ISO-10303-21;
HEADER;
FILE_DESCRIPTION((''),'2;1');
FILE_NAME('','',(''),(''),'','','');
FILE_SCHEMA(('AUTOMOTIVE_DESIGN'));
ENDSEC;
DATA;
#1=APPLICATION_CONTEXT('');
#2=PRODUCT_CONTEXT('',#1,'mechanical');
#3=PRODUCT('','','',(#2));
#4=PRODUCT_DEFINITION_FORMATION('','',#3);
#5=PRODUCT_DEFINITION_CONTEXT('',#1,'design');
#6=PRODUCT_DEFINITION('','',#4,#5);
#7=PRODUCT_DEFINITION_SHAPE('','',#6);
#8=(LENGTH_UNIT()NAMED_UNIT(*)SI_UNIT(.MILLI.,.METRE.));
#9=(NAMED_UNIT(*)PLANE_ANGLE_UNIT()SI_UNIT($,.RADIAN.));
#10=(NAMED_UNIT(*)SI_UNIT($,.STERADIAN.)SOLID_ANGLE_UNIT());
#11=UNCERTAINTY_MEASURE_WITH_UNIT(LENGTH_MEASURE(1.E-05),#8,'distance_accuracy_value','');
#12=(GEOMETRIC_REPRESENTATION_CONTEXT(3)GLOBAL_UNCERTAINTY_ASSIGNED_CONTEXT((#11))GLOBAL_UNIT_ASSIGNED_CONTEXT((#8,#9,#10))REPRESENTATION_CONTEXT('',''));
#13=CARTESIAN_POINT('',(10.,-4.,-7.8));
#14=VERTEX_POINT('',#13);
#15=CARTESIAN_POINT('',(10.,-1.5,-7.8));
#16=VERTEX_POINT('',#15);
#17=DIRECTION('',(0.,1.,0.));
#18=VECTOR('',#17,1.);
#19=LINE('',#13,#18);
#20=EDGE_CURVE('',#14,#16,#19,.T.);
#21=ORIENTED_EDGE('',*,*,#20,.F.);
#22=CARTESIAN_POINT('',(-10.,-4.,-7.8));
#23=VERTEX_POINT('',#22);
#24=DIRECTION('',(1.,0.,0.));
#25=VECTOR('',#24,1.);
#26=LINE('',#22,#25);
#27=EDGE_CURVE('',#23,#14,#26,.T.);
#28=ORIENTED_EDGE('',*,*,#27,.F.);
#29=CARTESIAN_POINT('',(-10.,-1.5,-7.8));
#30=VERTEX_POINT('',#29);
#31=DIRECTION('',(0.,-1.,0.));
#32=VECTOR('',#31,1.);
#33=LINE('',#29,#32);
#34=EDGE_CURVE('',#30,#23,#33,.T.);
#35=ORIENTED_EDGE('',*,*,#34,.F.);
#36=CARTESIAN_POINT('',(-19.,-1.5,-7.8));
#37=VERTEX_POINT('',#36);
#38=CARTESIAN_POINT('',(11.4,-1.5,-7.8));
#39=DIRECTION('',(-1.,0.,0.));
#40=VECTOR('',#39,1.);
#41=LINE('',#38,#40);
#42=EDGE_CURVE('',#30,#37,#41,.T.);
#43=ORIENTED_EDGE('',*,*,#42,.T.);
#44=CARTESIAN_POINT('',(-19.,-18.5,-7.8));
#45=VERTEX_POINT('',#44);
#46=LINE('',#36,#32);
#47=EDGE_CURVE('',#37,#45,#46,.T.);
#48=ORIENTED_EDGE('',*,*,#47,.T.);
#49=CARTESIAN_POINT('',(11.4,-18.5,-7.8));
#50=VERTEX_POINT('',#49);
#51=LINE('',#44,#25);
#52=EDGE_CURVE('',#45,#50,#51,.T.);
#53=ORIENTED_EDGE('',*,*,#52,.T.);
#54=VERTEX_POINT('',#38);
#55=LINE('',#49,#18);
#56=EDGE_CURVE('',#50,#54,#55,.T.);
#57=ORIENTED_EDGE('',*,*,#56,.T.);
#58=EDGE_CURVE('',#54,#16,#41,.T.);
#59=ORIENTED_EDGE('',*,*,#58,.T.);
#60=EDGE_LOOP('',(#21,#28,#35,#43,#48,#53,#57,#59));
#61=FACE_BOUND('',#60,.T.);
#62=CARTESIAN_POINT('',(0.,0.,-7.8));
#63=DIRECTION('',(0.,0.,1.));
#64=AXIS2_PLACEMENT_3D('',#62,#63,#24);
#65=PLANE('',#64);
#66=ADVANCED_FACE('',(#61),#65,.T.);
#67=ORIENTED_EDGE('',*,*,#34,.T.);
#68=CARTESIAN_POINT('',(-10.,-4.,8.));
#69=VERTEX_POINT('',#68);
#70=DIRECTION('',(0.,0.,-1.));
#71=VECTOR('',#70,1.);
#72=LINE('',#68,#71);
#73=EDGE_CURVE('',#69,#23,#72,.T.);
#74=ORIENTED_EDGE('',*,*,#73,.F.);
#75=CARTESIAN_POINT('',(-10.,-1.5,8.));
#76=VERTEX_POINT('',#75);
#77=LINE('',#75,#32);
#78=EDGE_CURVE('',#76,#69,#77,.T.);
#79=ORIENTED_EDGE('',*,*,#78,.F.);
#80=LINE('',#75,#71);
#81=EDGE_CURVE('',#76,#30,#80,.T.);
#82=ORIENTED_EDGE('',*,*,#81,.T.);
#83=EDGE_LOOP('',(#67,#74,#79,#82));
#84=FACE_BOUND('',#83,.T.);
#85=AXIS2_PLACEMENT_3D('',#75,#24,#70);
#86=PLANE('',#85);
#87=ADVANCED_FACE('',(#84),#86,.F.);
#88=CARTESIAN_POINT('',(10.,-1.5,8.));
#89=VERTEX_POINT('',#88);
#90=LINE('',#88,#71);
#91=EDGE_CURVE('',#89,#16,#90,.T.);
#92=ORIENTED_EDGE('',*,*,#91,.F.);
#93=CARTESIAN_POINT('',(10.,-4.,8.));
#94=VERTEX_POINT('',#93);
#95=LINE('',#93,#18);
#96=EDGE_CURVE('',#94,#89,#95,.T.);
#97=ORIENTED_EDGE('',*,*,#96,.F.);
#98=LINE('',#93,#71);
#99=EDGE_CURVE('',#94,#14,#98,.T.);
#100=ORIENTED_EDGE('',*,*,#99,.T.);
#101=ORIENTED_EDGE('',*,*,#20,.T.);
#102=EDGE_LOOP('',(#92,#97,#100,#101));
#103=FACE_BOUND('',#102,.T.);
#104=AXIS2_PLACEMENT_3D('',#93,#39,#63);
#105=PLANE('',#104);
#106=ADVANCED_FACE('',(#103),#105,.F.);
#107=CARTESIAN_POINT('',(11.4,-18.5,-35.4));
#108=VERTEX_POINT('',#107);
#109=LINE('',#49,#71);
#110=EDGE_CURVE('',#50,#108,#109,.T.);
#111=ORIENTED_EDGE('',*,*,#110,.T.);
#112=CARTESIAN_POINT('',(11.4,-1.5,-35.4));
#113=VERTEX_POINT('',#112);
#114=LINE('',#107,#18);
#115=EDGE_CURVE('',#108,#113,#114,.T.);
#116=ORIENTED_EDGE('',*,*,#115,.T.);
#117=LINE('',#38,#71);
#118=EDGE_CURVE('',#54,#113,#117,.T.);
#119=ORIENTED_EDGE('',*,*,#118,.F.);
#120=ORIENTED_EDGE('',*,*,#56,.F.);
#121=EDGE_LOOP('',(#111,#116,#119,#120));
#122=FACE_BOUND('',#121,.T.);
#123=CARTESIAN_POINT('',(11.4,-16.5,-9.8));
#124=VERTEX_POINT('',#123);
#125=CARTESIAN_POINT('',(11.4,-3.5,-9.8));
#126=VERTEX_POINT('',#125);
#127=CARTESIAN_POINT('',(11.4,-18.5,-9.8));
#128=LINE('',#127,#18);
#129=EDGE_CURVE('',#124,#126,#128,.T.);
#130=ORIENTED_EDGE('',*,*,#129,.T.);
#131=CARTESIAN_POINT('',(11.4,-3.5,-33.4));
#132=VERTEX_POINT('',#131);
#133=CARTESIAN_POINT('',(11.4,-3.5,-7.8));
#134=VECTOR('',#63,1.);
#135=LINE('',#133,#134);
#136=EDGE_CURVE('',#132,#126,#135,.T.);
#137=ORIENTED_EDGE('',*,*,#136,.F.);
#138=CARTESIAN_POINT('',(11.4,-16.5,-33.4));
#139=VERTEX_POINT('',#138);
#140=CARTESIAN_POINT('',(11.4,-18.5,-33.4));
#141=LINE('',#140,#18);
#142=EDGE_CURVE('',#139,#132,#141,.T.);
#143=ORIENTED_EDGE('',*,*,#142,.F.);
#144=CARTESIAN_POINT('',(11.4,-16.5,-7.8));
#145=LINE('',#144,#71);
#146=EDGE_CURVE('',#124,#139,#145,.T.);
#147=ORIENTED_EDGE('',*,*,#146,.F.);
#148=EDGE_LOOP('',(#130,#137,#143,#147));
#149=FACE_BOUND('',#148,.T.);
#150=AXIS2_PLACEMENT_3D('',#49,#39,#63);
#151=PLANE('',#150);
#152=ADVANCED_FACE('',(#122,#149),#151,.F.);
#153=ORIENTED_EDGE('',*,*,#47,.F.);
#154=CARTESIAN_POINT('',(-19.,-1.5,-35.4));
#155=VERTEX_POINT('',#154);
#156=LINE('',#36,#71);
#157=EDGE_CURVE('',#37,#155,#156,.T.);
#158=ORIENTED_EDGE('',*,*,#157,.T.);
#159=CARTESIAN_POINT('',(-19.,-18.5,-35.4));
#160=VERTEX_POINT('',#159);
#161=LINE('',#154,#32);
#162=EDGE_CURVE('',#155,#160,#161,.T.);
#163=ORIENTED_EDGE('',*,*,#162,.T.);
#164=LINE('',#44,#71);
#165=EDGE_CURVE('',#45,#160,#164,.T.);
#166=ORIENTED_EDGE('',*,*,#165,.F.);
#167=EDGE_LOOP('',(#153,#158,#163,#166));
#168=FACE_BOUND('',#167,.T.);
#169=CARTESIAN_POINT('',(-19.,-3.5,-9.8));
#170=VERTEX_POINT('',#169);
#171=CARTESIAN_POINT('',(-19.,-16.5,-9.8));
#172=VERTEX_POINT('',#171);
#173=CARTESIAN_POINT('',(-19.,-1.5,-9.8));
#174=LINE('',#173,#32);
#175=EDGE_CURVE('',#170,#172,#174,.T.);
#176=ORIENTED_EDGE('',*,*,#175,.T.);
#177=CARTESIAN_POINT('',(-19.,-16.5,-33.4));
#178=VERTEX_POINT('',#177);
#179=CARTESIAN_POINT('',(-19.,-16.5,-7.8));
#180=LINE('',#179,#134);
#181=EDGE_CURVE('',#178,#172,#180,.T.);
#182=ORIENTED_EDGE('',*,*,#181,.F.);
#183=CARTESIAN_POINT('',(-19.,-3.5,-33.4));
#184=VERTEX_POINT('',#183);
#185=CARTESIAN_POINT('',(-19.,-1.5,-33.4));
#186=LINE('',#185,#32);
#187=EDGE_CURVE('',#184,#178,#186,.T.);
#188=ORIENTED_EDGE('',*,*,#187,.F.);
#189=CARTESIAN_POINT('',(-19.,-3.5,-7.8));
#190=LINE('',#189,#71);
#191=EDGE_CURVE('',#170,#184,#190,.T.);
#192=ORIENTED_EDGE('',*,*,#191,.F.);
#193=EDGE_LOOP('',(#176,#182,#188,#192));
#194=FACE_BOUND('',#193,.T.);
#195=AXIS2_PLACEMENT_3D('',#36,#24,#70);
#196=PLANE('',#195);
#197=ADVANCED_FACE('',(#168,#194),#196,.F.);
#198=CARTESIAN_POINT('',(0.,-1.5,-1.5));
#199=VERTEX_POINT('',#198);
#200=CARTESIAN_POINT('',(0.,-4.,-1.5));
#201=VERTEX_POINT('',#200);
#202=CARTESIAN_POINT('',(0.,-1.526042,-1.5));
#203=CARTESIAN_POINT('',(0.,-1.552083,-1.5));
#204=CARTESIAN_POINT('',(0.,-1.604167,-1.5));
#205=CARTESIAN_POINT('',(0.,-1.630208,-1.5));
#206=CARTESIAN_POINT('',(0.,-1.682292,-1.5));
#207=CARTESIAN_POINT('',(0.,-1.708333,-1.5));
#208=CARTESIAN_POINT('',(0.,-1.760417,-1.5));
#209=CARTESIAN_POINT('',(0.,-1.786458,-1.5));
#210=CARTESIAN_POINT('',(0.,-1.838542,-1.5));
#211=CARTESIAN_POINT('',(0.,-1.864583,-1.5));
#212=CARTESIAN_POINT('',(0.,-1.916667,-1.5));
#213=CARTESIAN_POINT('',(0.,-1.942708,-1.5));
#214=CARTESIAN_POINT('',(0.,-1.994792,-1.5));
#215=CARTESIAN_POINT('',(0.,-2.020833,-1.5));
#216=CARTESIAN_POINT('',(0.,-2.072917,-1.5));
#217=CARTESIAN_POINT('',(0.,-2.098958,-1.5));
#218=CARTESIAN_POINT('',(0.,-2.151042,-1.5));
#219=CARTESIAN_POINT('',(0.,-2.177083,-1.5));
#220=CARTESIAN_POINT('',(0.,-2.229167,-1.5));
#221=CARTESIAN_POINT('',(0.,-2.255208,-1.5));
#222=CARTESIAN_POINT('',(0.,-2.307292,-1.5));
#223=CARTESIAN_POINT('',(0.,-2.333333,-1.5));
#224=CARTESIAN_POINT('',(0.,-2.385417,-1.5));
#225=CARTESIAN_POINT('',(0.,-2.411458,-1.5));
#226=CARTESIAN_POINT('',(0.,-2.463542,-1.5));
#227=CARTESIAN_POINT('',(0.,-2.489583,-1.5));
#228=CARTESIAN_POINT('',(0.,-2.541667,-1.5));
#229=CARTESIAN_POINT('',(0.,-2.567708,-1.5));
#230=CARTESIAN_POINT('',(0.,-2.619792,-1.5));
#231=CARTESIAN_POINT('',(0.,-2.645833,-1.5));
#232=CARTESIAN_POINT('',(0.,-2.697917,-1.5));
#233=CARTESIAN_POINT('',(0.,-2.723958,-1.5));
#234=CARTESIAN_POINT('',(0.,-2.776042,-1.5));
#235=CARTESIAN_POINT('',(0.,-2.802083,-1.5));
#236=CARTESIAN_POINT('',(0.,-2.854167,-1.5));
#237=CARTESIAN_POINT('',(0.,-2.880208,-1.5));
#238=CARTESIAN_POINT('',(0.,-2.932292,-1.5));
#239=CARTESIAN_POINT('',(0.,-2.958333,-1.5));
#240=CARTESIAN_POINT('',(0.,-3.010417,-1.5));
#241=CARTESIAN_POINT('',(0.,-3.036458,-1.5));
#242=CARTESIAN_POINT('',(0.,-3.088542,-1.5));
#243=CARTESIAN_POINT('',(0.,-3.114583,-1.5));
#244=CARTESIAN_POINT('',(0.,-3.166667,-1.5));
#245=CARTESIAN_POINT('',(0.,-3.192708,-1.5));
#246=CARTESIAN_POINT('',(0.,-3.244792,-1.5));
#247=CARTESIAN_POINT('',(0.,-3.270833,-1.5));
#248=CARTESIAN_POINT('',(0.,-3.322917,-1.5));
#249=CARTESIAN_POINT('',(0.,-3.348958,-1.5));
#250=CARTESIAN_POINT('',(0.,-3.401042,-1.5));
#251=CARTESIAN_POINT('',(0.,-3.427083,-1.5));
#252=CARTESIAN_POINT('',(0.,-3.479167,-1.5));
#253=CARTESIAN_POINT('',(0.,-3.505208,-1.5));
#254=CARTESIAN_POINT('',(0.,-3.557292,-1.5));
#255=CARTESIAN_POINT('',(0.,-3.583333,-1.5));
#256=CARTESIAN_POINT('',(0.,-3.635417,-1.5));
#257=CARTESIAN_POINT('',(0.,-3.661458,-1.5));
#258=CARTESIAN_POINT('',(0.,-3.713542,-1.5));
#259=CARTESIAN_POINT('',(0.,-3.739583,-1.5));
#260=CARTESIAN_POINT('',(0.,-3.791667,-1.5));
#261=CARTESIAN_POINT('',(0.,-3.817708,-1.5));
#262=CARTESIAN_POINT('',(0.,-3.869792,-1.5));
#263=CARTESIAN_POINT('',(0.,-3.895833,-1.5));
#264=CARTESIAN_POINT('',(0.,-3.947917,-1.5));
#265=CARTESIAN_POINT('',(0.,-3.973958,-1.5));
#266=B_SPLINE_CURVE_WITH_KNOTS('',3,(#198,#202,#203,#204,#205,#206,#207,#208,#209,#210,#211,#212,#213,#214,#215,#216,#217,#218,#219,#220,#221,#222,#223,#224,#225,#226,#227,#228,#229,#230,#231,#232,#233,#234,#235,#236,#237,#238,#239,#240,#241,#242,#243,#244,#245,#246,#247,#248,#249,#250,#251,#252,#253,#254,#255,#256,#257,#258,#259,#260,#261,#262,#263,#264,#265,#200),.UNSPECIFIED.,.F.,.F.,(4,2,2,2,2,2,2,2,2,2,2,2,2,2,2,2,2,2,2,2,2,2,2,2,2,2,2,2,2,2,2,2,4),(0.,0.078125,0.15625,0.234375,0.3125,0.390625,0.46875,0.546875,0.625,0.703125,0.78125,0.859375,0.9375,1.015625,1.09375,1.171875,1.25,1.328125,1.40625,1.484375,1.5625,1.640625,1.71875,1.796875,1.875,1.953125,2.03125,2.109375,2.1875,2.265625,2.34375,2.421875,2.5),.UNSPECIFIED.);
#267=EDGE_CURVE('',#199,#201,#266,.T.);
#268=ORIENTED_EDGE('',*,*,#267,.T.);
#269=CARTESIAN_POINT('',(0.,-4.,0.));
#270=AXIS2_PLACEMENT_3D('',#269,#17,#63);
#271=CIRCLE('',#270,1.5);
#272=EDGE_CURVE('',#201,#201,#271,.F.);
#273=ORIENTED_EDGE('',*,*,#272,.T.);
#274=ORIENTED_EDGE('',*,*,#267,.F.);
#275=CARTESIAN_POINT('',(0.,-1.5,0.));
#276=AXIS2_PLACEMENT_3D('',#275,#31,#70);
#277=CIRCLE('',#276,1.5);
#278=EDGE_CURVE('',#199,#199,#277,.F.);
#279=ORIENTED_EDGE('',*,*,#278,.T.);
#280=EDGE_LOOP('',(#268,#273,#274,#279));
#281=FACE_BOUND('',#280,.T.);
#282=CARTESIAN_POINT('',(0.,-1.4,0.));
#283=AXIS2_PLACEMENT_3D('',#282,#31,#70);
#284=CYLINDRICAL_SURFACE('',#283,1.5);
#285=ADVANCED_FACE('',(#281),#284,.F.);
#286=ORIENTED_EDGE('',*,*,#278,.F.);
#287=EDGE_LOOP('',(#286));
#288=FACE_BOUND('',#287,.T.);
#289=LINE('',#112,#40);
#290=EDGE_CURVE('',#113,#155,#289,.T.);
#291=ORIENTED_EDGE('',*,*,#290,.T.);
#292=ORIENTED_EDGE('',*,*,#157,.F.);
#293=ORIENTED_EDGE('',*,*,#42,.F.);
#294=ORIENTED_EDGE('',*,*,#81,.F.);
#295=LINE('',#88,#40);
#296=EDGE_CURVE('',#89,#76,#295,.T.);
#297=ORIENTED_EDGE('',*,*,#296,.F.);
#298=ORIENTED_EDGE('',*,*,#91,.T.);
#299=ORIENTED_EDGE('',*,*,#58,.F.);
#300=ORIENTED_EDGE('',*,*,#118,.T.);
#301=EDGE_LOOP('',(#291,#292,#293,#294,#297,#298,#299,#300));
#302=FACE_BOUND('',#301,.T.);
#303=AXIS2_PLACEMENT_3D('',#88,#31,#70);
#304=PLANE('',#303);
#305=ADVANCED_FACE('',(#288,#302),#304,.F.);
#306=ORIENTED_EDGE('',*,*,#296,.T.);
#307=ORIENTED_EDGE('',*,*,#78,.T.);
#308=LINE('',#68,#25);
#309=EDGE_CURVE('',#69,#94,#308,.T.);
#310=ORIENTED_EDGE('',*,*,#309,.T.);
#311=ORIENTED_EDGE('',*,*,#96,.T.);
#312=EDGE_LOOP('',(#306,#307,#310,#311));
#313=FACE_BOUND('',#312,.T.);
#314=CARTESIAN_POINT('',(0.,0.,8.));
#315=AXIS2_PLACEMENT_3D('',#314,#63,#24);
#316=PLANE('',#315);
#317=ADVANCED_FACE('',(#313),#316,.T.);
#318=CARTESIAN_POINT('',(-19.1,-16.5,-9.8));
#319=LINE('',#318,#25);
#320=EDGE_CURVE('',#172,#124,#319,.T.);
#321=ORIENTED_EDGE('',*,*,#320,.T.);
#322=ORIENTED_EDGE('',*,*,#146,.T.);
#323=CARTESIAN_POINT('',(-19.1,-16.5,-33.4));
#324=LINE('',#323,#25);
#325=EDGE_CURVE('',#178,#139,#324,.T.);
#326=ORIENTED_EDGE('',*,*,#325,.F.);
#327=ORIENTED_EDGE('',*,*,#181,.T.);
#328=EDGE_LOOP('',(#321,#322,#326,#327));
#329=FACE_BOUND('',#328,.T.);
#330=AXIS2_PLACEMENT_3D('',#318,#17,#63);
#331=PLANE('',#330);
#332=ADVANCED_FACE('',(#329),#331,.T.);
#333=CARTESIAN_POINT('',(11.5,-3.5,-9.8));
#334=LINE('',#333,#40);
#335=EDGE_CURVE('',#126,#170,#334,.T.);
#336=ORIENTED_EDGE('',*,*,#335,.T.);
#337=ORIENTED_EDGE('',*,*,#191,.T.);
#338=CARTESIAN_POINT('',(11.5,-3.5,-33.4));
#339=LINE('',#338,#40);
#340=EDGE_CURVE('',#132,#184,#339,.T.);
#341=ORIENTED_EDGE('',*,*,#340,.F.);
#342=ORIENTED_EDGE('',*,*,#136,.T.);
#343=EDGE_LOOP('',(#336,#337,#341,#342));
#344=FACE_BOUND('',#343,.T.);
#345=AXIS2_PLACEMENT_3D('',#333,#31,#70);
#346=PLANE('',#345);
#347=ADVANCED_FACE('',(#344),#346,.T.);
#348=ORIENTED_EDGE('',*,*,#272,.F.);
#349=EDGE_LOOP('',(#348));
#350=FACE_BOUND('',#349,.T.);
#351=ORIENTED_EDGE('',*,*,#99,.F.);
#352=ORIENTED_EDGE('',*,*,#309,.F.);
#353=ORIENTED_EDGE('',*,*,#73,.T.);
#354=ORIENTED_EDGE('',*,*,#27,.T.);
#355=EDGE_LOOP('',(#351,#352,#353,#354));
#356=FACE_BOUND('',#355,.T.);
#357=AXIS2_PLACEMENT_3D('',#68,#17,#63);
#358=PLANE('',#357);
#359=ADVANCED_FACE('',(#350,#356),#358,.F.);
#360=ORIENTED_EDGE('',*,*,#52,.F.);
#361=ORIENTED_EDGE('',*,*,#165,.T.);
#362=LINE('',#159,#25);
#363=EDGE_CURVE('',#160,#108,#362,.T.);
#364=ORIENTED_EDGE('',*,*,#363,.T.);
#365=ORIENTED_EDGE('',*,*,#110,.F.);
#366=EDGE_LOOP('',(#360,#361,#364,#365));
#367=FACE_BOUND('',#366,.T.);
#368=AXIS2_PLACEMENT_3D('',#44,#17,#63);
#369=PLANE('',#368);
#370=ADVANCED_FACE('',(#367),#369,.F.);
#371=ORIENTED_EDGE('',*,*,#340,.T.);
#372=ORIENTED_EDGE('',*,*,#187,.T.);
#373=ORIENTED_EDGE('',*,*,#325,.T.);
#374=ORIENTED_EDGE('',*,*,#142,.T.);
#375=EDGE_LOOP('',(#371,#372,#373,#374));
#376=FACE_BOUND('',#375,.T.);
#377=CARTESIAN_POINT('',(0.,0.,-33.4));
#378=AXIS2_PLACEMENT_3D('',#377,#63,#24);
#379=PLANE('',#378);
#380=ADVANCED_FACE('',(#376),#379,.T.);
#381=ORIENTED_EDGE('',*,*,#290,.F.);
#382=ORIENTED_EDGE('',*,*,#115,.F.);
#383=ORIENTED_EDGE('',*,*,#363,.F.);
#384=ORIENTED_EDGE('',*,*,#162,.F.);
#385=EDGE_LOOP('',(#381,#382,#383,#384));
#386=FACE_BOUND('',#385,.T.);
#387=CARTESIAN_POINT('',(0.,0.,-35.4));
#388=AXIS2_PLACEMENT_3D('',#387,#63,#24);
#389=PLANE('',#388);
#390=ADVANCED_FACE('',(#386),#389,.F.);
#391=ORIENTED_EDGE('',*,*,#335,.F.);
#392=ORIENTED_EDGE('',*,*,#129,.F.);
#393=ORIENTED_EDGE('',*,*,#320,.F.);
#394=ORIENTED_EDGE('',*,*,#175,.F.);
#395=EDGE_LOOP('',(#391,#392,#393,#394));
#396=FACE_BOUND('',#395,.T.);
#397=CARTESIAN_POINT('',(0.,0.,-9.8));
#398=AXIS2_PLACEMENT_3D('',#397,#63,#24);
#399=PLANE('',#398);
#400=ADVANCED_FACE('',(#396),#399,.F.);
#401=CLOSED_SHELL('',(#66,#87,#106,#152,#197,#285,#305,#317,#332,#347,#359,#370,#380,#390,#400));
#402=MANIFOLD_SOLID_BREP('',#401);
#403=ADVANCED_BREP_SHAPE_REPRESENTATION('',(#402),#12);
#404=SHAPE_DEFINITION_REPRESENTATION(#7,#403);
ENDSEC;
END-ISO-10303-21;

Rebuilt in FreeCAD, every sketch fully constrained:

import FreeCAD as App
import Part
import Sketcher
Q = App.Units.Quantity

doc = App.newDocument("Part")
body = doc.addObject("PartDesign::Body", "Body")

sketch1 = body.newObject("Sketcher::SketchObject", "Sketch")
sketch1.AttachmentSupport = (doc.getObject("XY_Plane"), [""])
sketch1.MapMode = "FlatFace"
sketch1.AttachmentOffset = App.Placement(App.Vector(0, 0, -34), App.Rotation())
sketch1.addGeometry([
    Part.LineSegment(App.Vector(-10, -1.5, 0), App.Vector(-10, -4, 0)),
    Part.LineSegment(App.Vector(-10, -4, 0), App.Vector(10, -4, 0)),
    Part.LineSegment(App.Vector(10, -4, 0), App.Vector(10, -1.5, 0)),
    Part.LineSegment(App.Vector(10, -1.5, 0), App.Vector(-10, -1.5, 0)),
], False)
sketch1.addConstraint([
    Sketcher.Constraint("Coincident", 0, 2, 1, 1),
    Sketcher.Constraint("Coincident", 1, 2, 2, 1),
    Sketcher.Constraint("Coincident", 2, 2, 3, 1),
    Sketcher.Constraint("Coincident", 3, 2, 0, 1),
    Sketcher.Constraint("Vertical", 0),
    Sketcher.Constraint("Horizontal", 1),
    Sketcher.Constraint("Vertical", 2),
    Sketcher.Constraint("Horizontal", 3),
    Sketcher.Constraint("DistanceX", 1, 1, 1, 2, Q("20 mm")),
    Sketcher.Constraint("DistanceY", 0, 2, 0, 1, Q("2.5 mm")),
    Sketcher.Constraint("DistanceX", 0, 2, -1, 1, Q("10 mm")),
    Sketcher.Constraint("DistanceY", 0, 2, -1, 1, Q("4 mm")),
])
pad1 = body.newObject("PartDesign::Pad", "Pad")
pad1.Profile = sketch1
pad1.Length = 42

sketch2 = body.newObject("Sketcher::SketchObject", "Sketch001")
sketch2.AttachmentSupport = (doc.getObject("XY_Plane"), [""])
sketch2.MapMode = "FlatFace"
sketch2.AttachmentOffset = App.Placement(App.Vector(0, 0, -35.4), App.Rotation())
sketch2.addGeometry([
    Part.LineSegment(App.Vector(-19, -1.5, 0), App.Vector(-19, -18.5, 0)),
    Part.LineSegment(App.Vector(-19, -18.5, 0), App.Vector(11.4, -18.5, 0)),
    Part.LineSegment(App.Vector(11.4, -18.5, 0), App.Vector(11.4, -1.5, 0)),
    Part.LineSegment(App.Vector(11.4, -1.5, 0), App.Vector(-19, -1.5, 0)),
], False)
sketch2.addConstraint([
    Sketcher.Constraint("Coincident", 0, 2, 1, 1),
    Sketcher.Constraint("Coincident", 1, 2, 2, 1),
    Sketcher.Constraint("Coincident", 2, 2, 3, 1),
    Sketcher.Constraint("Coincident", 3, 2, 0, 1),
    Sketcher.Constraint("Vertical", 0),
    Sketcher.Constraint("Horizontal", 1),
    Sketcher.Constraint("Vertical", 2),
    Sketcher.Constraint("Horizontal", 3),
    Sketcher.Constraint("DistanceY", 0, 2, 0, 1, Q("17 mm")),
    Sketcher.Constraint("DistanceX", 1, 1, 1, 2, Q("30.4 mm")),
    Sketcher.Constraint("DistanceX", 0, 2, -1, 1, Q("19 mm")),
    Sketcher.Constraint("DistanceY", 0, 2, -1, 1, Q("18.5 mm")),
])
pad2 = body.newObject("PartDesign::Pad", "Pad001")
pad2.Profile = sketch2
pad2.Length = 27.6

sketch3 = body.newObject("Sketcher::SketchObject", "Sketch002")
sketch3.AttachmentSupport = (doc.getObject("XY_Plane"), [""])
sketch3.MapMode = "FlatFace"
sketch3.AttachmentOffset = App.Placement(App.Vector(0, 0, -33.4), App.Rotation())
sketch3.addGeometry([
    Part.LineSegment(App.Vector(-19.1, -3.5, 0), App.Vector(-19.1, -16.5, 0)),
    Part.LineSegment(App.Vector(-19.1, -16.5, 0), App.Vector(11.5, -16.5, 0)),
    Part.LineSegment(App.Vector(11.5, -16.5, 0), App.Vector(11.5, -3.5, 0)),
    Part.LineSegment(App.Vector(11.5, -3.5, 0), App.Vector(-19.1, -3.5, 0)),
], False)
sketch3.addConstraint([
    Sketcher.Constraint("Coincident", 0, 2, 1, 1),
    Sketcher.Constraint("Coincident", 1, 2, 2, 1),
    Sketcher.Constraint("Coincident", 2, 2, 3, 1),
    Sketcher.Constraint("Coincident", 3, 2, 0, 1),
    Sketcher.Constraint("Vertical", 0),
    Sketcher.Constraint("Horizontal", 1),
    Sketcher.Constraint("Vertical", 2),
    Sketcher.Constraint("Horizontal", 3),
    Sketcher.Constraint("DistanceY", 0, 2, 0, 1, Q("13 mm")),
    Sketcher.Constraint("DistanceX", 1, 1, 1, 2, Q("30.6 mm")),
    Sketcher.Constraint("DistanceX", 0, 2, -1, 1, Q("19.1 mm")),
    Sketcher.Constraint("DistanceY", 0, 2, -1, 1, Q("16.5 mm")),
])
pocket1 = body.newObject("PartDesign::Pocket", "Pocket")
pocket1.Profile = sketch3
pocket1.Length = 23.6
pocket1.Reversed = True

sketch4 = body.newObject("Sketcher::SketchObject", "Sketch003")
sketch4.AttachmentSupport = (doc.getObject("XZ_Plane"), [""])
sketch4.MapMode = "FlatFace"
sketch4.AttachmentOffset = App.Placement(App.Vector(0, 0, 4.1), App.Rotation())
sketch4.addGeometry(Part.Circle(App.Vector(0, 0, 0), App.Vector(0, 0, 1), 1.5), False)
sketch4.addConstraint([
    Sketcher.Constraint("Coincident", 0, 3, -1, 1),
    Sketcher.Constraint("Diameter", 0, Q("3 mm")),
])
pocket2 = body.newObject("PartDesign::Pocket", "Pocket001")
pocket2.Profile = sketch4
pocket2.Length = 2.7

doc.recompute()
